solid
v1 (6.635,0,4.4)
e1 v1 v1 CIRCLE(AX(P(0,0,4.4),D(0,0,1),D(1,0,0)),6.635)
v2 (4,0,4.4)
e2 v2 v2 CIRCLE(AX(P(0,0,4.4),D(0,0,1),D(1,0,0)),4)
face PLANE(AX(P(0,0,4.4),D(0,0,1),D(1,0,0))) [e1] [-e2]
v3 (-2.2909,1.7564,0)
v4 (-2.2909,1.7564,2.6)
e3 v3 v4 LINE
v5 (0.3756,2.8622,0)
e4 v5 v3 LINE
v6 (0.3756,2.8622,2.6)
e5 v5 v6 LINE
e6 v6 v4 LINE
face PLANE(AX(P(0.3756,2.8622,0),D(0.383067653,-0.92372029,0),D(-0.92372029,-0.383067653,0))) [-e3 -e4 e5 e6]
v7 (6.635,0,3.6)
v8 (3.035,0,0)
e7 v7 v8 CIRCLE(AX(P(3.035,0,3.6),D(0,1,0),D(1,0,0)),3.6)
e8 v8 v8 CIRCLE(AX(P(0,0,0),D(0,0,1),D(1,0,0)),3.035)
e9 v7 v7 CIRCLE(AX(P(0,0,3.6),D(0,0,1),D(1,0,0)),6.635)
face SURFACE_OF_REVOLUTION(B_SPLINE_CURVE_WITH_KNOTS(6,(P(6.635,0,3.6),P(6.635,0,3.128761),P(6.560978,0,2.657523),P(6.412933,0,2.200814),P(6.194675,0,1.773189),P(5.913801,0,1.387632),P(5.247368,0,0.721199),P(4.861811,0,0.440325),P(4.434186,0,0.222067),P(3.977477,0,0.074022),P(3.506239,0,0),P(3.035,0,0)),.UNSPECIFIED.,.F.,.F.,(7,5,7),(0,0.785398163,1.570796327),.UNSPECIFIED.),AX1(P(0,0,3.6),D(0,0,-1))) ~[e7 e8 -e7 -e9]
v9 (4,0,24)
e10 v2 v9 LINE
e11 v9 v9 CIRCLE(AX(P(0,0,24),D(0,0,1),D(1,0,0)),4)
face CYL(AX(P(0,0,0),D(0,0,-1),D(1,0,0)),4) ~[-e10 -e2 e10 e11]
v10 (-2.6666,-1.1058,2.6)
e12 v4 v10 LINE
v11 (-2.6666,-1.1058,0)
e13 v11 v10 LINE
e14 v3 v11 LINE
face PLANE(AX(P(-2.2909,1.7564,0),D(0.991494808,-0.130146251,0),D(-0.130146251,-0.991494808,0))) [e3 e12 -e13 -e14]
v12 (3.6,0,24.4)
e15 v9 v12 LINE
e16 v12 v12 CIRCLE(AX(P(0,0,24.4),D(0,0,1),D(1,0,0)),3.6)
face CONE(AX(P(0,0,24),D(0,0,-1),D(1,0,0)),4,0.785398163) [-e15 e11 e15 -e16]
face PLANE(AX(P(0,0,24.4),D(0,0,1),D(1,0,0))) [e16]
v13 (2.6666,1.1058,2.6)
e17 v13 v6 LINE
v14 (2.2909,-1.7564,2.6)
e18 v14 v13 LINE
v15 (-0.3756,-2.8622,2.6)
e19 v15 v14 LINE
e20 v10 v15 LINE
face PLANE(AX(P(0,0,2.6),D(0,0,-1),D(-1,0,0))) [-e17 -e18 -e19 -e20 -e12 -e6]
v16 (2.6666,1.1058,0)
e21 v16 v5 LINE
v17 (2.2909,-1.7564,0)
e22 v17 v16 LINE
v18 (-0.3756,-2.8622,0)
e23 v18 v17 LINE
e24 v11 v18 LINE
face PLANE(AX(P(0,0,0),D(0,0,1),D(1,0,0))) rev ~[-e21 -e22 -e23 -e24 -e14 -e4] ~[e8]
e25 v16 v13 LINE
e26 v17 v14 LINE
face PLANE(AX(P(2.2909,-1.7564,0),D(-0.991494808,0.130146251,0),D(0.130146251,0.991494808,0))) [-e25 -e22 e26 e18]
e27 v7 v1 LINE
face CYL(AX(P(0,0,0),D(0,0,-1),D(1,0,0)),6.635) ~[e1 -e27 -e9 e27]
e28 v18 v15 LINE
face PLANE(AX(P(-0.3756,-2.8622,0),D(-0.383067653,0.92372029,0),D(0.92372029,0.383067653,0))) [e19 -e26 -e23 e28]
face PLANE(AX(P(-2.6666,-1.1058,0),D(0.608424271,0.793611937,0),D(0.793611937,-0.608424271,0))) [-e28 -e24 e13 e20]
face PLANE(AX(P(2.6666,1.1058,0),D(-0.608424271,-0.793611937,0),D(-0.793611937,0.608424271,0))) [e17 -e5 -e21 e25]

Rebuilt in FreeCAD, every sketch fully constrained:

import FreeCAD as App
import Part
import Sketcher
from FreeCAD import Vector
Q = App.Units.Quantity


def edges_at(feature, points):
    """Names of the edges that pass closest to the given points."""
    edges = feature.Shape.Edges
    near = lambda p: min(range(len(edges)), key=lambda i: edges[i].distToShape(Part.Vertex(*p))[0])
    return sorted({f"Edge{near(p) + 1}" for p in points})

doc = App.newDocument("Part")
body = doc.addObject("PartDesign::Body", "Body")

sketch1 = body.newObject("Sketcher::SketchObject", "Sketch")
sketch1.AttachmentSupport = (doc.getObject("XY_Plane"), [""])
sketch1.MapMode = "FlatFace"
sketch1.addGeometry([
    Part.Circle(Vector(0, 0, 0), Vector(0, 0, 1), 6.6),
    Part.Circle(Vector(0, 0, 0), Vector(0, 0, 1), 4),
], False)
sketch1.addConstraint([
    Sketcher.Constraint("Coincident", 0, 3, -1, 1),
    Sketcher.Constraint("Coincident", 1, 3, -1, 1),
    Sketcher.Constraint("Diameter", 1, Q("8 mm")),
    Sketcher.Constraint("Diameter", 0, Q("13.27 mm")),
])
pad1 = body.newObject("PartDesign::Pad", "Pad")
pad1.Profile = sketch1
pad1.Length = 4.4

sketch2 = body.newObject("Sketcher::SketchObject", "Sketch001")
sketch2.AttachmentSupport = (doc.getObject("XY_Plane"), [""])
sketch2.MapMode = "FlatFace"
sketch2.addGeometry(Part.Circle(Vector(0, 0, 0), Vector(0, 0, 1), 4), False)
sketch2.addConstraint([
    Sketcher.Constraint("Coincident", 0, 3, -1, 1),
    Sketcher.Constraint("Diameter", 0, Q("8 mm")),
])
pad2 = body.newObject("PartDesign::Pad", "Pad001")
pad2.Profile = sketch2
pad2.Length = 24.4

sketch3 = body.newObject("Sketcher::SketchObject", "Sketch002")
sketch3.AttachmentSupport = (doc.getObject("XY_Plane"), [""])
sketch3.MapMode = "FlatFace"
sketch3.addGeometry([
    Part.LineSegment(Vector(-2.7, -1.1, 0), Vector(-2.3, 1.8, 0)),
    Part.LineSegment(Vector(-2.3, 1.8, 0), Vector(0.4, 2.9, 0)),
    Part.LineSegment(Vector(0.4, 2.9, 0), Vector(2.7, 1.1, 0)),
    Part.LineSegment(Vector(2.7, 1.1, 0), Vector(2.3, -1.8, 0)),
    Part.LineSegment(Vector(2.3, -1.8, 0), Vector(-0.4, -2.9, 0)),
    Part.LineSegment(Vector(-0.4, -2.9, 0), Vector(-2.7, -1.1, 0)),
], False)
sketch3.addConstraint([
    Sketcher.Constraint("Coincident", 0, 2, 1, 1),
    Sketcher.Constraint("Coincident", 1, 2, 2, 1),
    Sketcher.Constraint("Coincident", 2, 2, 3, 1),
    Sketcher.Constraint("Coincident", 3, 2, 4, 1),
    Sketcher.Constraint("Coincident", 4, 2, 5, 1),
    Sketcher.Constraint("Coincident", 5, 2, 0, 1),
    Sketcher.Constraint("Symmetric", 0, 2, 3, 2, -1, 1),
    Sketcher.Constraint("Symmetric", 1, 2, 4, 2, -1, 1),
    Sketcher.Constraint("Symmetric", 2, 2, 5, 2, -1, 1),
    Sketcher.Constraint("Equal", 0, 1),
    Sketcher.Constraint("Equal", 1, 2),
    Sketcher.Constraint("DistanceX", 0, 2, -1, 1, Q("2.291 mm")),
    Sketcher.Constraint("DistanceX", 1, 2, 2, 2, Q("2.291 mm")),
    Sketcher.Constraint("DistanceY", 4, 2, 2, 2, Q("3.968 mm")),
    Sketcher.Constraint("Distance", 0, Q("2.8868 mm")),
])
pocket1 = body.newObject("PartDesign::Pocket", "Pocket")
pocket1.Profile = sketch3
pocket1.Length = 2.6
pocket1.Reversed = True
doc.recompute()

fillet = body.newObject("PartDesign::Fillet", "Fillet")
fillet.Base = (pocket1, edges_at(pocket1, [(-6.635, 0, 0)]))
fillet.Radius = 3.6
doc.recompute()

chamfer = body.newObject("PartDesign::Chamfer", "Chamfer")
chamfer.Base = (fillet, edges_at(fillet, [(-4, 0, 24.4)]))
chamfer.Size = 0.4

doc.recompute()
